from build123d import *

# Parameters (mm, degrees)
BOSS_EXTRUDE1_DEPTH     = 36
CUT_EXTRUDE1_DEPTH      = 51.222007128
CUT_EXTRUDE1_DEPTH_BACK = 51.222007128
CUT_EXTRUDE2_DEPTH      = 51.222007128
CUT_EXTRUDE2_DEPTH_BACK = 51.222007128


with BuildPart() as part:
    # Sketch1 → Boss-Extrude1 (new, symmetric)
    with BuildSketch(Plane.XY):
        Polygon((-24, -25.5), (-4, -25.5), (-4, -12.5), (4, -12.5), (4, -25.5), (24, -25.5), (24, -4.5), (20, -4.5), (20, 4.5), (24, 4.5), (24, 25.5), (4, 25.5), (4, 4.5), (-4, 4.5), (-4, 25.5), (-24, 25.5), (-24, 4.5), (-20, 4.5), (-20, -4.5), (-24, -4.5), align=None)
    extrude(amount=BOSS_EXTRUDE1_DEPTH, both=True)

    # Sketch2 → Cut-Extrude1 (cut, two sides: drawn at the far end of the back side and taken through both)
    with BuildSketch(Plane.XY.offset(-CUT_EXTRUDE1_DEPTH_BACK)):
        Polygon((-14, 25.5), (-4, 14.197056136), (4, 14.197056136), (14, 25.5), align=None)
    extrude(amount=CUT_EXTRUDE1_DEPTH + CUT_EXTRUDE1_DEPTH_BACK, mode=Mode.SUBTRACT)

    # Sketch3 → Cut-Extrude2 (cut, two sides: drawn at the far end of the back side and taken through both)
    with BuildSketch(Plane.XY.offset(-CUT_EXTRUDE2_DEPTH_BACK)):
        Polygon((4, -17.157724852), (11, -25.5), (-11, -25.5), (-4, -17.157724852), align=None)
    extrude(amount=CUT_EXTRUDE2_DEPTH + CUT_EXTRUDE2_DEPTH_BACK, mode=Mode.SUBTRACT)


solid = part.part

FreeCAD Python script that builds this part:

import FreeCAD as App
import Part
import Sketcher
from FreeCAD import Vector
Q = App.Units.Quantity

doc = App.newDocument("Part")
body = doc.addObject("PartDesign::Body", "Body")

sketch1 = body.newObject("Sketcher::SketchObject", "Sketch")
sketch1.AttachmentSupport = (doc.getObject("XY_Plane"), [""])
sketch1.MapMode = "FlatFace"
sketch1.addGeometry(Part.LineSegment(Vector(-24, -25.5, 0), Vector(-4, -25.5, 0)), False)
sketch1.addGeometry(Part.LineSegment(Vector(-4, -25.5, 0), Vector(-4, -12.5, 0)), False)
sketch1.addGeometry(Part.LineSegment(Vector(-4, -12.5, 0), Vector(4, -12.5, 0)), False)
sketch1.addGeometry(Part.LineSegment(Vector(4, -12.5, 0), Vector(4, -25.5, 0)), False)
sketch1.addGeometry(Part.LineSegment(Vector(4, -25.5, 0), Vector(24, -25.5, 0)), False)
sketch1.addGeometry(Part.LineSegment(Vector(24, -25.5, 0), Vector(24, -4.5, 0)), False)
sketch1.addGeometry(Part.LineSegment(Vector(24, -4.5, 0), Vector(20, -4.5, 0)), False)
sketch1.addGeometry(Part.LineSegment(Vector(20, -4.5, 0), Vector(20, 4.5, 0)), False)
sketch1.addGeometry(Part.LineSegment(Vector(20, 4.5, 0), Vector(24, 4.5, 0)), False)
sketch1.addGeometry(Part.LineSegment(Vector(24, 4.5, 0), Vector(24, 25.5, 0)), False)
sketch1.addGeometry(Part.LineSegment(Vector(24, 25.5, 0), Vector(4, 25.5, 0)), False)
sketch1.addGeometry(Part.LineSegment(Vector(4, 25.5, 0), Vector(4, 4.5, 0)), False)
sketch1.addGeometry(Part.LineSegment(Vector(4, 4.5, 0), Vector(-4, 4.5, 0)), False)
sketch1.addGeometry(Part.LineSegment(Vector(-4, 4.5, 0), Vector(-4, 25.5, 0)), False)
sketch1.addGeometry(Part.LineSegment(Vector(-4, 25.5, 0), Vector(-24, 25.5, 0)), False)
sketch1.addGeometry(Part.LineSegment(Vector(-24, 25.5, 0), Vector(-24, 4.5, 0)), False)
sketch1.addGeometry(Part.LineSegment(Vector(-24, 4.5, 0), Vector(-20, 4.5, 0)), False)
sketch1.addGeometry(Part.LineSegment(Vector(-20, 4.5, 0), Vector(-20, -4.5, 0)), False)
sketch1.addGeometry(Part.LineSegment(Vector(-20, -4.5, 0), Vector(-24, -4.5, 0)), False)
sketch1.addGeometry(Part.LineSegment(Vector(-24, -4.5, 0), Vector(-24, -25.5, 0)), False)
sketch1.addConstraint(Sketcher.Constraint("Coincident", 0, 2, 1, 1))
sketch1.addConstraint(Sketcher.Constraint("Coincident", 1, 2, 2, 1))
sketch1.addConstraint(Sketcher.Constraint("Coincident", 2, 2, 3, 1))
sketch1.addConstraint(Sketcher.Constraint("Coincident", 3, 2, 4, 1))
sketch1.addConstraint(Sketcher.Constraint("Coincident", 4, 2, 5, 1))
sketch1.addConstraint(Sketcher.Constraint("Coincident", 5, 2, 6, 1))
sketch1.addConstraint(Sketcher.Constraint("Coincident", 6, 2, 7, 1))
sketch1.addConstraint(Sketcher.Constraint("Coincident", 7, 2, 8, 1))
sketch1.addConstraint(Sketcher.Constraint("Coincident", 8, 2, 9, 1))
sketch1.addConstraint(Sketcher.Constraint("Coincident", 9, 2, 10, 1))
sketch1.addConstraint(Sketcher.Constraint("Coincident", 10, 2, 11, 1))
sketch1.addConstraint(Sketcher.Constraint("Coincident", 11, 2, 12, 1))
sketch1.addConstraint(Sketcher.Constraint("Coincident", 12, 2, 13, 1))
sketch1.addConstraint(Sketcher.Constraint("Coincident", 13, 2, 14, 1))
sketch1.addConstraint(Sketcher.Constraint("Coincident", 14, 2, 15, 1))
sketch1.addConstraint(Sketcher.Constraint("Coincident", 15, 2, 16, 1))
sketch1.addConstraint(Sketcher.Constraint("Coincident", 16, 2, 17, 1))
sketch1.addConstraint(Sketcher.Constraint("Coincident", 17, 2, 18, 1))
sketch1.addConstraint(Sketcher.Constraint("Coincident", 18, 2, 19, 1))
sketch1.addConstraint(Sketcher.Constraint("Coincident", 19, 2, 0, 1))
sketch1.addConstraint(Sketcher.Constraint("Horizontal", 0))
sketch1.addConstraint(Sketcher.Constraint("Vertical", 1))
sketch1.addConstraint(Sketcher.Constraint("Horizontal", 2))
sketch1.addConstraint(Sketcher.Constraint("Vertical", 3))
sketch1.addConstraint(Sketcher.Constraint("Horizontal", 4))
sketch1.addConstraint(Sketcher.Constraint("Vertical", 5))
sketch1.addConstraint(Sketcher.Constraint("Horizontal", 6))
sketch1.addConstraint(Sketcher.Constraint("Vertical", 7))
sketch1.addConstraint(Sketcher.Constraint("Horizontal", 8))
sketch1.addConstraint(Sketcher.Constraint("Vertical", 9))
sketch1.addConstraint(Sketcher.Constraint("Horizontal", 10))
sketch1.addConstraint(Sketcher.Constraint("Vertical", 11))
sketch1.addConstraint(Sketcher.Constraint("Horizontal", 12))
sketch1.addConstraint(Sketcher.Constraint("Vertical", 13))
sketch1.addConstraint(Sketcher.Constraint("Horizontal", 14))
sketch1.addConstraint(Sketcher.Constraint("Vertical", 15))
sketch1.addConstraint(Sketcher.Constraint("Horizontal", 16))
sketch1.addConstraint(Sketcher.Constraint("Vertical", 17))
sketch1.addConstraint(Sketcher.Constraint("Horizontal", 18))
sketch1.addConstraint(Sketcher.Constraint("Vertical", 19))
sketch1.addConstraint(Sketcher.Constraint("Symmetric", 0, 2, 10, 2, -1, 1))
sketch1.addConstraint(Sketcher.Constraint("Symmetric", 3, 2, 13, 2, -1, 1))
sketch1.addConstraint(Sketcher.Constraint("Symmetric", 5, 2, 15, 2, -1, 1))
sketch1.addConstraint(Sketcher.Constraint("Symmetric", 7, 2, 17, 2, -1, 1))
sketch1.addConstraint(Sketcher.Constraint("Symmetric", 0, 2, 3, 2, -2))
sketch1.addConstraint(Sketcher.Constraint("Symmetric", 8, 2, 15, 2, -2))
sketch1.addConstraint(Sketcher.Constraint("Horizontal", 8, 2, 11, 2))
sketch1.addConstraint(Sketcher.Constraint("Vertical", 15, 2, 18, 2))
sketch1.addConstraint(Sketcher.Constraint("DistanceX", 0, 1, 0, 2, Q("20 mm")))
sketch1.addConstraint(Sketcher.Constraint("DistanceX", 2, 1, 2, 2, Q("8 mm")))
sketch1.addConstraint(Sketcher.Constraint("DistanceX", 6, 2, 6, 1, Q("4 mm")))
sketch1.addConstraint(Sketcher.Constraint("DistanceY", 1, 1, 1, 2, Q("13 mm")))
sketch1.addConstraint(Sketcher.Constraint("DistanceY", 5, 1, 5, 2, Q("21 mm")))
sketch1.addConstraint(Sketcher.Constraint("DistanceY", 7, 1, 7, 2, Q("9 mm")))
pad1 = body.newObject("PartDesign::Pad", "Pad")
pad1.Profile = sketch1
pad1.Length = 72
pad1.Midplane = True

sketch2 = body.newObject("Sketcher::SketchObject", "Sketch001")
sketch2.AttachmentSupport = (doc.getObject("XY_Plane"), [""])
sketch2.MapMode = "FlatFace"
sketch2.addGeometry(Part.LineSegment(Vector(-14, 26, 0), Vector(-4, 14, 0)), False)
sketch2.addGeometry(Part.LineSegment(Vector(-4, 14, 0), Vector(4, 14, 0)), False)
sketch2.addGeometry(Part.LineSegment(Vector(4, 14, 0), Vector(14, 26, 0)), False)
sketch2.addGeometry(Part.LineSegment(Vector(14, 26, 0), Vector(-14, 26, 0)), False)
sketch2.addConstraint(Sketcher.Constraint("Coincident", 0, 2, 1, 1))
sketch2.addConstraint(Sketcher.Constraint("Coincident", 1, 2, 2, 1))
sketch2.addConstraint(Sketcher.Constraint("Coincident", 2, 2, 3, 1))
sketch2.addConstraint(Sketcher.Constraint("Coincident", 3, 2, 0, 1))
sketch2.addConstraint(Sketcher.Constraint("Horizontal", 1))
sketch2.addConstraint(Sketcher.Constraint("Horizontal", 3))
sketch2.addConstraint(Sketcher.Constraint("Equal", 0, 2))
sketch2.addConstraint(Sketcher.Constraint("DistanceX", 1, 1, 1, 2, Q("8 mm")))
sketch2.addConstraint(Sketcher.Constraint("DistanceX", 3, 2, 3, 1, Q("28 mm")))
sketch2.addConstraint(Sketcher.Constraint("DistanceX", 0, 2, -1, 1, Q("4 mm")))
sketch2.addConstraint(Sketcher.Constraint("Angle", 0, Q("-48.5 deg")))
sketch2.addConstraint(Sketcher.Constraint("DistanceY", -1, 1, 2, 2, Q("25.5 mm")))
pocket1 = body.newObject("PartDesign::Pocket", "Pocket")
pocket1.Profile = sketch2
pocket1.Type = "ThroughAll"
pocket1.Midplane = True

sketch3 = body.newObject("Sketcher::SketchObject", "Sketch002")
sketch3.AttachmentSupport = (doc.getObject("XY_Plane"), [""])
sketch3.MapMode = "FlatFace"
sketch3.addGeometry(Part.LineSegment(Vector(11, -26, 0), Vector(4, -17, 0)), False)
sketch3.addGeometry(Part.LineSegment(Vector(4, -17, 0), Vector(-4, -17, 0)), False)
sketch3.addGeometry(Part.LineSegment(Vector(-4, -17, 0), Vector(-11, -26, 0)), False)
sketch3.addGeometry(Part.LineSegment(Vector(-11, -26, 0), Vector(11, -26, 0)), False)
sketch3.addConstraint(Sketcher.Constraint("Coincident", 0, 2, 1, 1))
sketch3.addConstraint(Sketcher.Constraint("Coincident", 1, 2, 2, 1))
sketch3.addConstraint(Sketcher.Constraint("Coincident", 2, 2, 3, 1))
sketch3.addConstraint(Sketcher.Constraint("Coincident", 3, 2, 0, 1))
sketch3.addConstraint(Sketcher.Constraint("Horizontal", 1))
sketch3.addConstraint(Sketcher.Constraint("Horizontal", 3))
sketch3.addConstraint(Sketcher.Constraint("Equal", 0, 2))
sketch3.addConstraint(Sketcher.Constraint("DistanceX", 1, 2, 1, 1, Q("8 mm")))
sketch3.addConstraint(Sketcher.Constraint("DistanceX", 3, 1, 3, 2, Q("22 mm")))
sketch3.addConstraint(Sketcher.Constraint("Angle", 0, Q("130 deg")))
sketch3.addConstraint(Sketcher.Constraint("DistanceX", -1, 1, 0, 2, Q("4 mm")))
sketch3.addConstraint(Sketcher.Constraint("DistanceY", 2, 2, -1, 1, Q("25.5 mm")))
pocket2 = body.newObject("PartDesign::Pocket", "Pocket001")
pocket2.Profile = sketch3
pocket2.Type = "ThroughAll"
pocket2.Midplane = True

doc.recompute()
